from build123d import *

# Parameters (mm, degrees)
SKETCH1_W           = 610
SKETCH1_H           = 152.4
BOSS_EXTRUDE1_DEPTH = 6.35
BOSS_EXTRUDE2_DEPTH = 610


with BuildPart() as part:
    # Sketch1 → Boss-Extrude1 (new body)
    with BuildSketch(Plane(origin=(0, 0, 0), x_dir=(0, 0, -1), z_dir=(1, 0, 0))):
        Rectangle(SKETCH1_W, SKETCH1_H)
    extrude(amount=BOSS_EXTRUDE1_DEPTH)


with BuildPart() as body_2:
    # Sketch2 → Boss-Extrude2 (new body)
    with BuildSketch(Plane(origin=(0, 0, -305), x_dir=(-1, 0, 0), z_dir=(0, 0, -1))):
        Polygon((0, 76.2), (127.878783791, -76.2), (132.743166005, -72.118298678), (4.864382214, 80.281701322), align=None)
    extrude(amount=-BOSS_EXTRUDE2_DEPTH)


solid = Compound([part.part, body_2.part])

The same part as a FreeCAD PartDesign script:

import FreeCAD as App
import Part
import Sketcher

V = App.Vector
Q = App.Units.Quantity


def add_polygon(sketch, points):
    """Adds a closed chain of lines whose ends are joined by coincident constraints."""
    first, n = sketch.GeometryCount, len(points)
    for a, b in zip(points, points[1:] + points[:1]):
        sketch.addGeometry(Part.LineSegment(App.Vector(*a, 0), App.Vector(*b, 0)), False)
    for i in range(n):
        sketch.addConstraint(Sketcher.Constraint("Coincident", first + i, 2, first + (i + 1) % n, 1))

doc = App.newDocument("Part")
body = doc.addObject("PartDesign::Body", "Body")

sketch1 = doc.addObject("Sketcher::SketchObject", "Sketch")
body.addObject(sketch1)
sketch1.AttachmentSupport = (doc.YZ_Plane, [""])
sketch1.MapMode = "FlatFace"
add_polygon(sketch1, [(76, 305), (-76, 305), (-76, -305), (76, -305)])
sketch1.addConstraint([
    Sketcher.Constraint("Horizontal", 0),
    Sketcher.Constraint("Vertical", 1),
    Sketcher.Constraint("Horizontal", 2),
    Sketcher.Constraint("Vertical", 3),
    Sketcher.Constraint("Symmetric", 0, 2, 2, 2, -1, 1),
    Sketcher.Constraint("DistanceX", 0, 2, 0, 1, Q("6 in")),
    Sketcher.Constraint("DistanceY", 1, 2, 1, 1, 610.0),
])
pad1 = doc.addObject("PartDesign::Pad", "Pad")
body.addObject(pad1)
pad1.Profile = sketch1
pad1.Length = Q("0.25 in")
body2 = doc.addObject("PartDesign::Body", "Body001")

sketch2 = doc.addObject("Sketcher::SketchObject", "Sketch001")
body2.addObject(sketch2)
sketch2.AttachmentSupport = (doc.getObject("XY_Plane001"), [""])
sketch2.MapMode = "FlatFace"
sketch2.AttachmentOffset = App.Placement(V(0, 0, -305), App.Rotation())
add_polygon(sketch2, [(0, 76), (-128, -76), (-133, -72), (-5, 80)])
sketch2.addConstraint([
    Sketcher.Constraint("PointOnObject", 3, 2, -2),
    Sketcher.Constraint("Perpendicular", 0, 1),
    Sketcher.Constraint("Perpendicular", 1, 2),
    Sketcher.Constraint("Perpendicular", 2, 3),
    Sketcher.Constraint("DistanceY", 0, 2, -1, 1, Q("3 in")),
    Sketcher.Constraint("DistanceY", -1, 1, 3, 2, Q("3 in")),
    Sketcher.Constraint("Angle", 0, Q("-130 deg")),
    Sketcher.Constraint("Distance", 1, Q("0.25 in")),
])
pad2 = doc.addObject("PartDesign::Pad", "Pad001")
body2.addObject(pad2)
pad2.Profile = sketch2
pad2.Length = 610

doc.recompute()
